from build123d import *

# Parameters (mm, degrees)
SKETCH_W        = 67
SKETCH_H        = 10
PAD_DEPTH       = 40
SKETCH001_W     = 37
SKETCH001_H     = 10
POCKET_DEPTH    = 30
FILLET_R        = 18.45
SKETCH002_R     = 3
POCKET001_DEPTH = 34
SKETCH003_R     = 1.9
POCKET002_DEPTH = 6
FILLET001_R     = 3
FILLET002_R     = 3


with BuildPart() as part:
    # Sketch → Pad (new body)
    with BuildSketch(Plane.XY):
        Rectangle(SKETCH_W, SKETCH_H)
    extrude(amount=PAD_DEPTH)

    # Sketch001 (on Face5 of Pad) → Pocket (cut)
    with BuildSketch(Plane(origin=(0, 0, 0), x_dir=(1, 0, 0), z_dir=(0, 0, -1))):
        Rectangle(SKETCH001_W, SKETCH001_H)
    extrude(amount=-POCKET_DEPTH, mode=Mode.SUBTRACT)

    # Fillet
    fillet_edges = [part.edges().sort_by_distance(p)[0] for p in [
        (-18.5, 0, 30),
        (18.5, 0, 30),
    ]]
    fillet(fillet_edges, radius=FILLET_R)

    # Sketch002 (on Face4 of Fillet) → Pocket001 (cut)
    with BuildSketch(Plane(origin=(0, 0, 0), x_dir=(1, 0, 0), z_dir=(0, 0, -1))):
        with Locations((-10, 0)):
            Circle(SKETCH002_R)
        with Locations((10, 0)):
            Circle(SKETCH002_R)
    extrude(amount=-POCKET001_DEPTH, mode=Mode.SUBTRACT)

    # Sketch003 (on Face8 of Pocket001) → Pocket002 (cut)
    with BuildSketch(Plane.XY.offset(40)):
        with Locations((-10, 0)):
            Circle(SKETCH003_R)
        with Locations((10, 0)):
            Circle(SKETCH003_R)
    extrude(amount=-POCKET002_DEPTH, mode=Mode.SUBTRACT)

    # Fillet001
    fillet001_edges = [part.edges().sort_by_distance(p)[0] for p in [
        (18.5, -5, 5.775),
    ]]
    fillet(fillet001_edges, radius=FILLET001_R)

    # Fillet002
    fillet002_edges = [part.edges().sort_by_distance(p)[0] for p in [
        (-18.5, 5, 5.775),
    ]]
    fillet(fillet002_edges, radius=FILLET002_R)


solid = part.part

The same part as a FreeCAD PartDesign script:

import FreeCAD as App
import Part
import Sketcher
Q = App.Units.Quantity


def edges_at(feature, points):
    """Names of the edges that pass closest to the given points."""
    edges = feature.Shape.Edges
    near = lambda p: min(range(len(edges)), key=lambda i: edges[i].distToShape(Part.Vertex(*p))[0])
    return sorted({f"Edge{near(p) + 1}" for p in points})


def add_polygon(sketch, points):
    """Adds a closed chain of lines whose ends are joined by coincident constraints."""
    first, n = sketch.GeometryCount, len(points)
    for a, b in zip(points, points[1:] + points[:1]):
        sketch.addGeometry(Part.LineSegment(App.Vector(*a, 0), App.Vector(*b, 0)), False)
    for i in range(n):
        sketch.addConstraint(Sketcher.Constraint("Coincident", first + i, 2, first + (i + 1) % n, 1))

doc = App.newDocument("Part")
body = doc.addObject("PartDesign::Body", "Body")

# Sketch on XY plane
sketch1 = doc.addObject("Sketcher::SketchObject", "Sketch")
body.addObject(sketch1)
sketch1.AttachmentSupport = (doc.XY_Plane, [""])
sketch1.MapMode = "FlatFace"
add_polygon(sketch1, [(-34, 5), (-34, -5), (34, -5), (34, 5)])  # lines 0-3
sketch1.addConstraint([
    Sketcher.Constraint("Vertical", 0),
    Sketcher.Constraint("Horizontal", 1),
    Sketcher.Constraint("Vertical", 2),
    Sketcher.Constraint("Horizontal", 3),
    Sketcher.Constraint("Symmetric", 0, 2, 2, 2, -1, 1),
    Sketcher.Constraint("DistanceX", 1, 1, 1, 2, Q("67 mm")),
    Sketcher.Constraint("DistanceY", 0, 2, 0, 1, Q("10 mm")),
])
pad1 = doc.addObject("PartDesign::Pad", "Pad")
body.addObject(pad1)
pad1.Profile = sketch1
pad1.Length = 40

# Sketch on XY plane
sketch2 = doc.addObject("Sketcher::SketchObject", "Sketch001")
body.addObject(sketch2)
sketch2.AttachmentSupport = (doc.XY_Plane, [""])
sketch2.MapMode = "FlatFace"
add_polygon(sketch2, [(-18, -5), (-18, 5), (18, 5), (18, -5)])  # lines 0-3
sketch2.addConstraint([
    Sketcher.Constraint("Vertical", 0),
    Sketcher.Constraint("Horizontal", 1),
    Sketcher.Constraint("Vertical", 2),
    Sketcher.Constraint("Horizontal", 3),
    Sketcher.Constraint("Symmetric", 0, 2, 2, 2, -1, 1),
    Sketcher.Constraint("DistanceX", 1, 1, 1, 2, Q("37 mm")),
    Sketcher.Constraint("DistanceY", 0, 1, 0, 2, Q("10 mm")),
])
pocket1 = doc.addObject("PartDesign::Pocket", "Pocket")
body.addObject(pocket1)
pocket1.Profile = sketch2
pocket1.Length = 30
pocket1.Reversed = True
doc.recompute()

fillet = doc.addObject("PartDesign::Fillet", "Fillet")
body.addObject(fillet)
fillet.Base = (pocket1, edges_at(pocket1, [(-18.5, 0, 30), (18.5, 0, 30)]))
fillet.Radius = 18.45

# Sketch on XY plane
sketch3 = doc.addObject("Sketcher::SketchObject", "Sketch002")
body.addObject(sketch3)
sketch3.AttachmentSupport = (doc.XY_Plane, [""])
sketch3.MapMode = "FlatFace"
sketch3.addGeometry([
    Part.Circle(App.Vector(-10, 0, 0), App.Vector(0, 0, 1), 3),
    Part.Circle(App.Vector(10, 0, 0), App.Vector(0, 0, 1), 3),
], False)
sketch3.addConstraint([
    Sketcher.Constraint("Equal", 0, 1),
    Sketcher.Constraint("Symmetric", 0, 3, 1, 3, -1, 1),
    Sketcher.Constraint("PointOnObject", 0, 3, -1),
    Sketcher.Constraint("Diameter", 0, Q("6 mm")),
    Sketcher.Constraint("DistanceX", 0, 3, -1, 1, Q("10 mm")),
])
pocket2 = doc.addObject("PartDesign::Pocket", "Pocket001")
body.addObject(pocket2)
pocket2.Profile = sketch3
pocket2.Length = 34
pocket2.Reversed = True

# Sketch on XY plane
sketch4 = doc.addObject("Sketcher::SketchObject", "Sketch003")
body.addObject(sketch4)
sketch4.AttachmentSupport = (doc.XY_Plane, [""])
sketch4.MapMode = "FlatFace"
sketch4.AttachmentOffset = App.Placement(App.Vector(0, 0, 40), App.Rotation())
sketch4.addGeometry([
    Part.Circle(App.Vector(-10, 0, 0), App.Vector(0, 0, 1), 1.9),
    Part.Circle(App.Vector(10, 0, 0), App.Vector(0, 0, 1), 1.9),
], False)
sketch4.addConstraint([
    Sketcher.Constraint("Equal", 0, 1),
    Sketcher.Constraint("Symmetric", 0, 3, 1, 3, -1, 1),
    Sketcher.Constraint("PointOnObject", 0, 3, -1),
    Sketcher.Constraint("Diameter", 0, Q("3.8 mm")),
    Sketcher.Constraint("DistanceX", 0, 3, -1, 1, Q("10 mm")),
])
pocket3 = doc.addObject("PartDesign::Pocket", "Pocket002")
body.addObject(pocket3)
pocket3.Profile = sketch4
pocket3.Length = 6
doc.recompute()

fillet2 = doc.addObject("PartDesign::Fillet", "Fillet001")
body.addObject(fillet2)
fillet2.Base = (pocket3, edges_at(pocket3, [(18.5, -5, 5.775)]))
fillet2.Radius = 3
doc.recompute()

fillet3 = doc.addObject("PartDesign::Fillet", "Fillet002")
body.addObject(fillet3)
fillet3.Base = (fillet2, edges_at(fillet2, [(-18.5, 5, 5.775)]))
fillet3.Radius = 3

doc.recompute()
